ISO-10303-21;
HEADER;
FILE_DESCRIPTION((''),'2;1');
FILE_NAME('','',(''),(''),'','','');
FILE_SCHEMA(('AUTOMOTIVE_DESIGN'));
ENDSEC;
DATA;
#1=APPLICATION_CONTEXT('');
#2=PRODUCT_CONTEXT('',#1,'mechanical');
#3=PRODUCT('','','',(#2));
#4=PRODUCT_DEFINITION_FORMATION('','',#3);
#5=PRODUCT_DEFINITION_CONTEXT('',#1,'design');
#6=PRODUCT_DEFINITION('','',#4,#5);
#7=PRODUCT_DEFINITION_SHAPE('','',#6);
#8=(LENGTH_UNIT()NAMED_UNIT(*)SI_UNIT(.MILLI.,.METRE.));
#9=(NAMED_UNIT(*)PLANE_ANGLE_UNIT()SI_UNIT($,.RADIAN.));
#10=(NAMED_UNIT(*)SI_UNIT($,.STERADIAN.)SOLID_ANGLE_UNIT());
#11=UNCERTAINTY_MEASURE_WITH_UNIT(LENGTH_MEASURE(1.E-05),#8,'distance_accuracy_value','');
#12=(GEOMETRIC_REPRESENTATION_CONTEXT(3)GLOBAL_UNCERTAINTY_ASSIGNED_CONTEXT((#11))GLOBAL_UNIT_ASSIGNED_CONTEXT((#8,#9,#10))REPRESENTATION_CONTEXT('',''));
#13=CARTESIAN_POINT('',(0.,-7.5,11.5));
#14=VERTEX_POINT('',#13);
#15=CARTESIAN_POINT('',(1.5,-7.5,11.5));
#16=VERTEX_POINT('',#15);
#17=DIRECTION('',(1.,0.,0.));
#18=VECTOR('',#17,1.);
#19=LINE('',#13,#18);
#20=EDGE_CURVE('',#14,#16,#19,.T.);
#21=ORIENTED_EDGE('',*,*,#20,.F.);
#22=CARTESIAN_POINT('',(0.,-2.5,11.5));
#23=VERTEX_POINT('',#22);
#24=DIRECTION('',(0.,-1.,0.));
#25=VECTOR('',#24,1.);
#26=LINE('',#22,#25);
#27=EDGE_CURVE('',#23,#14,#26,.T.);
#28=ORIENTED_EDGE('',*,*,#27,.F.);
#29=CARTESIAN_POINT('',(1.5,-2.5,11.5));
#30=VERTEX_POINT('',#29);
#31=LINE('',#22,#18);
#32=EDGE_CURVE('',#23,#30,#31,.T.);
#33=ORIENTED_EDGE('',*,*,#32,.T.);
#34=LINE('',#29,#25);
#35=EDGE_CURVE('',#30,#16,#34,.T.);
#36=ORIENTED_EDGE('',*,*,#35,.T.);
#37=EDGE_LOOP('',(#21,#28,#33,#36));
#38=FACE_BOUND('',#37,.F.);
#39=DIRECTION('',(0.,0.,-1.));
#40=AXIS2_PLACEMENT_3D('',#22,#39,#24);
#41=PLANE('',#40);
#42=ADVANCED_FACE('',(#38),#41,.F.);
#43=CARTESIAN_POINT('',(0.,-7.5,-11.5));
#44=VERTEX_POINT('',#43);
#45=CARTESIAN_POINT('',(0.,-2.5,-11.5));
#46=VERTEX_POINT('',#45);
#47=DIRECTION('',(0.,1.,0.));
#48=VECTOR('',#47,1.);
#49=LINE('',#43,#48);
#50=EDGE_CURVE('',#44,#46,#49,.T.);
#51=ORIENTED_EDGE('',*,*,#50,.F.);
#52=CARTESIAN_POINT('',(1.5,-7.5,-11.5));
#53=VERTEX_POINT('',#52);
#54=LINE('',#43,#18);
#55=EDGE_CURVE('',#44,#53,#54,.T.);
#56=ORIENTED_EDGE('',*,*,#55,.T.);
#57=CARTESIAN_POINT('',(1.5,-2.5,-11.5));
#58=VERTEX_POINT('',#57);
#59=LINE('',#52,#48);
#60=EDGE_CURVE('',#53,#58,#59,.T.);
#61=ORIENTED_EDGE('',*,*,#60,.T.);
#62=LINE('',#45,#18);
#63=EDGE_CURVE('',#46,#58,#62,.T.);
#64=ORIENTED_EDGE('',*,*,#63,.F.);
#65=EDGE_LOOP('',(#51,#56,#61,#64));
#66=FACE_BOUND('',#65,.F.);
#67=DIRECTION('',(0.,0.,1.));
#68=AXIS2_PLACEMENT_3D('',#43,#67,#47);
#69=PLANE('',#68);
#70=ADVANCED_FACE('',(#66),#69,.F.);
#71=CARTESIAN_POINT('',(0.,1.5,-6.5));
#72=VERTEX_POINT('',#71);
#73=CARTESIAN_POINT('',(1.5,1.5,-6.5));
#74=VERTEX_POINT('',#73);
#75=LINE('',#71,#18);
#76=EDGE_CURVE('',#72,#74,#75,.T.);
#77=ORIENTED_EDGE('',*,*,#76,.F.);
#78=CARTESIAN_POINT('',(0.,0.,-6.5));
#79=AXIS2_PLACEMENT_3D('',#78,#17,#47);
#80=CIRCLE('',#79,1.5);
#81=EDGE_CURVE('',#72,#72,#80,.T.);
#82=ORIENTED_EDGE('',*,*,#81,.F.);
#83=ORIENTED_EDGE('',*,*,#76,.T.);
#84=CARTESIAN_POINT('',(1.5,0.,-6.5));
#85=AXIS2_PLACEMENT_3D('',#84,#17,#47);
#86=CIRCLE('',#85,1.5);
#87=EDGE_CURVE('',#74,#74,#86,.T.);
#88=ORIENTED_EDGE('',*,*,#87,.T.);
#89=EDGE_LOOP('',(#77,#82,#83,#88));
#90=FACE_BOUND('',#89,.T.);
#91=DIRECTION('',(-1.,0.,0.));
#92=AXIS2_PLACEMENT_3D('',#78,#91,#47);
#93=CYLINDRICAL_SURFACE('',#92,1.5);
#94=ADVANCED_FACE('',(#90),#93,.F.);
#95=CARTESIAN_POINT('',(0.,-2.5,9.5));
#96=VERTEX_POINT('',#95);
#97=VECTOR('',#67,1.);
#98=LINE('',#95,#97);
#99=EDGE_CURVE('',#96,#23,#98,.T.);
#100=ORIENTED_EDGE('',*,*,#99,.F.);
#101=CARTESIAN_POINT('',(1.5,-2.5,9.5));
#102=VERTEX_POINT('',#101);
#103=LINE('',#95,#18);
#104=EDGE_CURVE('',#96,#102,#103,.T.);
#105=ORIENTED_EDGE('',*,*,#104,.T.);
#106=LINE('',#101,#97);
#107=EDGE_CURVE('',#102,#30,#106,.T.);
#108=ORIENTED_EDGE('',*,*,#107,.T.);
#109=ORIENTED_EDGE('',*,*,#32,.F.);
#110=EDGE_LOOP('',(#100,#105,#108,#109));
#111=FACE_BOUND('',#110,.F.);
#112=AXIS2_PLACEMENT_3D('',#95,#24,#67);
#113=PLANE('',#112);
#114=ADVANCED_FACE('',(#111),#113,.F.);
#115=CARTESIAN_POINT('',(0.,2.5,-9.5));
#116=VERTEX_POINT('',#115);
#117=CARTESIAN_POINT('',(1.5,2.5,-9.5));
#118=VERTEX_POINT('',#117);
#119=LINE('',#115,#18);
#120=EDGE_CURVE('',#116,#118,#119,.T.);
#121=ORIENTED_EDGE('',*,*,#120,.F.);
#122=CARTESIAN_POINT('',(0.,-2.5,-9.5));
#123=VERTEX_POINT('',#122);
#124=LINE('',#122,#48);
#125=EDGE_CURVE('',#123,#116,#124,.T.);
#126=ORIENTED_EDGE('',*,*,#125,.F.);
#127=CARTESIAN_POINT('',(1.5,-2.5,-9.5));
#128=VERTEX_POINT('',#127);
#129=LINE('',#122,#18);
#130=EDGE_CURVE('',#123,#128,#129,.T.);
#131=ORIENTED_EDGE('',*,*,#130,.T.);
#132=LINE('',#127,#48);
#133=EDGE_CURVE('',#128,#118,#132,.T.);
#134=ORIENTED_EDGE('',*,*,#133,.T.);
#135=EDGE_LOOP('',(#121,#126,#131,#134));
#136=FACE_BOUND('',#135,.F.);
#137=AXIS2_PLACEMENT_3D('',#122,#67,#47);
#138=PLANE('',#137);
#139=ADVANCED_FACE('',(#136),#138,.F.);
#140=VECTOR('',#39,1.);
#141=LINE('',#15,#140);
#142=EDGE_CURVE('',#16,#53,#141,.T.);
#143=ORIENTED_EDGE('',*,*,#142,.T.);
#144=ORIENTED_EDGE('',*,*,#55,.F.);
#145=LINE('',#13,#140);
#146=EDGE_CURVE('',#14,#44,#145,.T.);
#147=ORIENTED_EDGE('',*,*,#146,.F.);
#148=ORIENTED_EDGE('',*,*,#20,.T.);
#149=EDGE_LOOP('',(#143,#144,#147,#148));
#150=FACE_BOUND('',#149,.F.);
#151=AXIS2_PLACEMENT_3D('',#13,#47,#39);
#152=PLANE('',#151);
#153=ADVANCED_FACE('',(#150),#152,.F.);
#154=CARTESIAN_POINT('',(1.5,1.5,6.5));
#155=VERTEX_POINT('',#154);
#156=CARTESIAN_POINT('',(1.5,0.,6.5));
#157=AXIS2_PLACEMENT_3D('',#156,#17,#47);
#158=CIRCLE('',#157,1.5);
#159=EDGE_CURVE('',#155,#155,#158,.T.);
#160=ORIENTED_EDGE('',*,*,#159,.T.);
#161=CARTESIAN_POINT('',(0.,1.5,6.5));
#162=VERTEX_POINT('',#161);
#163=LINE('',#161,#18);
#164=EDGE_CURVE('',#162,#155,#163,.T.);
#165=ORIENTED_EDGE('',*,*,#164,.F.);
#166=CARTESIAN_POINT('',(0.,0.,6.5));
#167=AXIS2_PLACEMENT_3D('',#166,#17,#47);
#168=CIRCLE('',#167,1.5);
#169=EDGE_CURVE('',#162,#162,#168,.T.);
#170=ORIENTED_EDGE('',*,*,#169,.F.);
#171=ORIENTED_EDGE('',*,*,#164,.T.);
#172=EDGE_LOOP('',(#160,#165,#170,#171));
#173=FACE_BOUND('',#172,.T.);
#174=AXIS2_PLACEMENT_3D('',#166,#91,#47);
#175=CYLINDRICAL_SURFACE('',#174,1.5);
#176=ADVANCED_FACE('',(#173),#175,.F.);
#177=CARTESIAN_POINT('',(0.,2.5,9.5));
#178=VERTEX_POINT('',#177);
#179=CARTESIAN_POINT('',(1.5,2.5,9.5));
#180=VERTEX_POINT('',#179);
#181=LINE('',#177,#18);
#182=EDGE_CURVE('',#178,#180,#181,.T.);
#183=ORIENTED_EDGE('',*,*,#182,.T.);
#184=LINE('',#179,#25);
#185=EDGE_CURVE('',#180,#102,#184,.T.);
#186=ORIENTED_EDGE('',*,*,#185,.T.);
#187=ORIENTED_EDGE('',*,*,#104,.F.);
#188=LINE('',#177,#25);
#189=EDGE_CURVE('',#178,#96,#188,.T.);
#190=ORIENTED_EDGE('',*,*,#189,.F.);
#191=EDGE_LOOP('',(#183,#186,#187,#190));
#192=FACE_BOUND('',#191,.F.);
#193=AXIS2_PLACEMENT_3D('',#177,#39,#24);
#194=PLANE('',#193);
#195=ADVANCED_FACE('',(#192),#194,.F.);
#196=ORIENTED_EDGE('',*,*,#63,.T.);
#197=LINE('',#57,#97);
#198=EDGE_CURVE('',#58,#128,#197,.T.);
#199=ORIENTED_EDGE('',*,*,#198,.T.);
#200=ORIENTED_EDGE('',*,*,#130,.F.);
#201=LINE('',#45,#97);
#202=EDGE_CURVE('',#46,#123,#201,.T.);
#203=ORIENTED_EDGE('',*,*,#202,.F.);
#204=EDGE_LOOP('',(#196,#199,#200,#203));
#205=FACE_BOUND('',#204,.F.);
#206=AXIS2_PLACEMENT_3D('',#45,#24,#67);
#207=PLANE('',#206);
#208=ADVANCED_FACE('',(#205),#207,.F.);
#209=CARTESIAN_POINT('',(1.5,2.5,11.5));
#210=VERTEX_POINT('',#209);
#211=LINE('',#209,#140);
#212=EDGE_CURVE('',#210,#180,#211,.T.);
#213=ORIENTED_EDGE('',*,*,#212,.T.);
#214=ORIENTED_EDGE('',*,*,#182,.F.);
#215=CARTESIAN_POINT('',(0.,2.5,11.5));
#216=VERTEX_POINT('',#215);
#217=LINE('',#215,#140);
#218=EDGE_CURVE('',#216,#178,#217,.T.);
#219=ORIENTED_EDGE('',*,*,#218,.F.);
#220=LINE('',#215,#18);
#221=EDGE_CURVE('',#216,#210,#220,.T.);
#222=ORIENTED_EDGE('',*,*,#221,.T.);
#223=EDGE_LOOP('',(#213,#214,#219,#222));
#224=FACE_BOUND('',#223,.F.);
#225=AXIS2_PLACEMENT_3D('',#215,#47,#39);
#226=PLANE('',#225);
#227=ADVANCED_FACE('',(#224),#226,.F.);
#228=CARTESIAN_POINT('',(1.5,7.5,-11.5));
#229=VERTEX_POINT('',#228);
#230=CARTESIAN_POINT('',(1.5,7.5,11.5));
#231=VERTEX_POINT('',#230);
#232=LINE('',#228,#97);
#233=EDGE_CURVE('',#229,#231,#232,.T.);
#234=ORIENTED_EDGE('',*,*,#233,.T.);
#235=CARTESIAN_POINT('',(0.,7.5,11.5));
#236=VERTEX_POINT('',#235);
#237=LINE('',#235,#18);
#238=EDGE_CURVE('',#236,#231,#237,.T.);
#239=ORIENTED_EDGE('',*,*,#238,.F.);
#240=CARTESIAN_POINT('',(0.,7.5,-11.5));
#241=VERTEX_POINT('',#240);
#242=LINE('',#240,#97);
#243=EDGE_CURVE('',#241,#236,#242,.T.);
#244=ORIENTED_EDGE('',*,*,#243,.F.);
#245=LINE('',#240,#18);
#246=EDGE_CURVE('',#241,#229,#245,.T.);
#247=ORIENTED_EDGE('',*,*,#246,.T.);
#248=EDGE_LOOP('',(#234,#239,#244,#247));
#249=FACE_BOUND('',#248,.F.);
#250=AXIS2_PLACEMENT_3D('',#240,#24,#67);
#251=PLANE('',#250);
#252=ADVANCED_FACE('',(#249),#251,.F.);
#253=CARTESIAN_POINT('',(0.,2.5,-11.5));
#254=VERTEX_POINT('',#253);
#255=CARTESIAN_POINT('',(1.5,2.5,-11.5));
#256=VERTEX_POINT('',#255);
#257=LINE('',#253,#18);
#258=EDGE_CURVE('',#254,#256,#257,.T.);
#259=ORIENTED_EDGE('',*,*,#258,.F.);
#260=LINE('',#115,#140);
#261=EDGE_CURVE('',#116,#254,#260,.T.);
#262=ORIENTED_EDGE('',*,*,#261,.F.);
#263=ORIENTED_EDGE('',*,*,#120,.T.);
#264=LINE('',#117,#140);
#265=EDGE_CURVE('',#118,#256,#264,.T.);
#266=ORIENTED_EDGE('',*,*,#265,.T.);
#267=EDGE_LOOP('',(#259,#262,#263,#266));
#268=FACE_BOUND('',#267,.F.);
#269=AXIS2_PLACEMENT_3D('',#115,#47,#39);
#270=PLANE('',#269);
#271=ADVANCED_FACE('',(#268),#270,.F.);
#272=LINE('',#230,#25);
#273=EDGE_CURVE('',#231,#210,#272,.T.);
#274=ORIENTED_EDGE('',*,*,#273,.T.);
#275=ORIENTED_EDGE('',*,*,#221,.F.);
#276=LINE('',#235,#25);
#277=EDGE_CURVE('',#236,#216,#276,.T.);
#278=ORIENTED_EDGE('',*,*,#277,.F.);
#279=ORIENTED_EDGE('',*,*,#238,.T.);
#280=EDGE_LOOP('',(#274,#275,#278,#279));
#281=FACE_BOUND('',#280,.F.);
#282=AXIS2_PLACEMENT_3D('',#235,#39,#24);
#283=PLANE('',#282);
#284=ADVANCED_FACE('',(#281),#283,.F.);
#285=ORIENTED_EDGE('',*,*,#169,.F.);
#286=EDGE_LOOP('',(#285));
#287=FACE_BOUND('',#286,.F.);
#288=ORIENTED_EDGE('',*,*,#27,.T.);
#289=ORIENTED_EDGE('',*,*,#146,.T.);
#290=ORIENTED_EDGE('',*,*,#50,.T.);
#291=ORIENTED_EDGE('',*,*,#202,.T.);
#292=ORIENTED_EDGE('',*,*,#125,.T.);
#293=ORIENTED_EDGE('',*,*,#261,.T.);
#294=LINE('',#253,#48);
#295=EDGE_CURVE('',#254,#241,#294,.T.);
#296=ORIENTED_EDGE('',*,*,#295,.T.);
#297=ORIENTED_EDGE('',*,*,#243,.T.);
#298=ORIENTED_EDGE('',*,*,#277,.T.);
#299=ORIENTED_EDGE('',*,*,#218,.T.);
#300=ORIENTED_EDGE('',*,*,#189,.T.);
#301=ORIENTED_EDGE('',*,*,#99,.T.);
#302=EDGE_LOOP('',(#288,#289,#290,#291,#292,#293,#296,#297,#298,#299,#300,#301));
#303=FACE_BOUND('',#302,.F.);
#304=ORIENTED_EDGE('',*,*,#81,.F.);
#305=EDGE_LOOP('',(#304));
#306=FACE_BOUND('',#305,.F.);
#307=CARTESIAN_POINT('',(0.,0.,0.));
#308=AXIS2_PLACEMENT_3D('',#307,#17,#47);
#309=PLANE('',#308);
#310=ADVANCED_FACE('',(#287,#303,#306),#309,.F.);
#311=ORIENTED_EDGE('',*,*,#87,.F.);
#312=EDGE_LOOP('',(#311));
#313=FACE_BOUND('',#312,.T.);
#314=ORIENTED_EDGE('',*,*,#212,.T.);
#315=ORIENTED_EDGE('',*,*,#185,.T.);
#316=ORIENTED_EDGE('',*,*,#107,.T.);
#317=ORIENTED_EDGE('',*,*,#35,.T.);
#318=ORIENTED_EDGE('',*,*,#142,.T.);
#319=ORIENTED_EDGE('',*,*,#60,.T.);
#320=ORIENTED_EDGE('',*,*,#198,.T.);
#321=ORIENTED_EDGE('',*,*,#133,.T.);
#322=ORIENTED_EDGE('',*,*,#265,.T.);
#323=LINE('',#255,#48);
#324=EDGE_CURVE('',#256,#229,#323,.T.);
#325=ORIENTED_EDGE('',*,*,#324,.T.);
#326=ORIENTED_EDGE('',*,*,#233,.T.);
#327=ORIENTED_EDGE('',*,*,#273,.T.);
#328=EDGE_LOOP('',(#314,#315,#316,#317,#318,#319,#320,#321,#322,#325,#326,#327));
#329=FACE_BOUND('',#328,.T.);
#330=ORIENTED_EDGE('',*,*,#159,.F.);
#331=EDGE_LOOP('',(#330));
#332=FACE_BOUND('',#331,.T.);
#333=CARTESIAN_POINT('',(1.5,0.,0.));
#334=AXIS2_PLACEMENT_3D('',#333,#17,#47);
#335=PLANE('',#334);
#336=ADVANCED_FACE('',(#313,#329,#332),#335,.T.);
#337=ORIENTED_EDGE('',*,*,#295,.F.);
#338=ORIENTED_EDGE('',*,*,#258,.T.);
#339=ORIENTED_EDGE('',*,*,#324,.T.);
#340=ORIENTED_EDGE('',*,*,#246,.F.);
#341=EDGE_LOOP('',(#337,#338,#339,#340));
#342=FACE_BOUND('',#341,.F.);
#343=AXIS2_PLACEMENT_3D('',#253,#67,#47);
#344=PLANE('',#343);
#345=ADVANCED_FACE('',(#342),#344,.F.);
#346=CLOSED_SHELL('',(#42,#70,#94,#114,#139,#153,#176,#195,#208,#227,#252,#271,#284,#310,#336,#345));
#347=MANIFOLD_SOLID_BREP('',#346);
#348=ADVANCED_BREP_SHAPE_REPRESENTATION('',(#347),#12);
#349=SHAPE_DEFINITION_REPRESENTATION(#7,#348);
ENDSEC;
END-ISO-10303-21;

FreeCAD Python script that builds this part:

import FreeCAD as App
import Part
import Sketcher
from FreeCAD import Vector


def add_polygon(sketch, points):
    """Adds a closed chain of lines whose ends are joined by coincident constraints."""
    first, n = sketch.GeometryCount, len(points)
    for a, b in zip(points, points[1:] + points[:1]):
        sketch.addGeometry(Part.LineSegment(App.Vector(*a, 0), App.Vector(*b, 0)), False)
    for i in range(n):
        sketch.addConstraint(Sketcher.Constraint("Coincident", first + i, 2, first + (i + 1) % n, 1))

doc = App.newDocument("Part")
body = doc.addObject("PartDesign::Body", "Body")

# Sketch on YZ plane
sketch1 = body.newObject("Sketcher::SketchObject", "Sketch")
sketch1.AttachmentSupport = (doc.getObject("YZ_Plane"), [""])
sketch1.MapMode = "FlatFace"
add_polygon(sketch1, [(7.5, -11.5), (7.5, 11.5), (2.5, 11.5), (2.5, 9.5), (-2.5, 9.5), (-2.5, 11.5), (-7.5, 11.5), (-7.5, -11.5), (-2.5, -11.5), (-2.5, -9.5), (2.5, -9.5), (2.5, -11.5)])  # lines 0-11
sketch1.addGeometry(Part.Circle(Vector(0, -6.5, 0), Vector(0, 0, 1), 1.5), False)  # 12
sketch1.addGeometry(Part.Circle(Vector(0, 6.5, 0), Vector(0, 0, 1), 1.5), False)  # 13
sketch1.addConstraint(Sketcher.Constraint("Vertical", 0))
sketch1.addConstraint(Sketcher.Constraint("Horizontal", 1))
sketch1.addConstraint(Sketcher.Constraint("Vertical", 2))
sketch1.addConstraint(Sketcher.Constraint("Horizontal", 3))
sketch1.addConstraint(Sketcher.Constraint("Vertical", 4))
sketch1.addConstraint(Sketcher.Constraint("Horizontal", 5))
sketch1.addConstraint(Sketcher.Constraint("Vertical", 6))
sketch1.addConstraint(Sketcher.Constraint("Horizontal", 7))
sketch1.addConstraint(Sketcher.Constraint("Vertical", 8))
sketch1.addConstraint(Sketcher.Constraint("Horizontal", 9))
sketch1.addConstraint(Sketcher.Constraint("Vertical", 10))
sketch1.addConstraint(Sketcher.Constraint("Horizontal", 11))
sketch1.addConstraint(Sketcher.Constraint("Equal", 12, 13))
sketch1.addConstraint(Sketcher.Constraint("Symmetric", 12, 3, 13, 3, -1, 1))
sketch1.addConstraint(Sketcher.Constraint("Symmetric", 0, 2, 6, 2, -1, 1))
sketch1.addConstraint(Sketcher.Constraint("Symmetric", 2, 2, 8, 2, -1, 1))
sketch1.addConstraint(Sketcher.Constraint("Symmetric", 4, 2, 10, 2, -1, 1))
sketch1.addConstraint(Sketcher.Constraint("Symmetric", 1, 2, 4, 2, -2))
sketch1.addConstraint(Sketcher.Constraint("PointOnObject", 12, 3, -2))
sketch1.addConstraint(Sketcher.Constraint("Equal", 1, 3))
sketch1.addConstraint(Sketcher.Constraint("Diameter", 12, 3.0))
sketch1.addConstraint(Sketcher.Constraint("DistanceX", 1, 2, 1, 1, 5.0))
sketch1.addConstraint(Sketcher.Constraint("DistanceY", 0, 1, 0, 2, 23.0))
sketch1.addConstraint(Sketcher.Constraint("DistanceY", 2, 2, 2, 1, 2.0))
sketch1.addConstraint(Sketcher.Constraint("DistanceY", 12, 3, 13, 3, 13.0))
pad1 = body.newObject("PartDesign::Pad", "Pad")
pad1.Profile = sketch1
pad1.Length = 1.5

doc.recompute()
